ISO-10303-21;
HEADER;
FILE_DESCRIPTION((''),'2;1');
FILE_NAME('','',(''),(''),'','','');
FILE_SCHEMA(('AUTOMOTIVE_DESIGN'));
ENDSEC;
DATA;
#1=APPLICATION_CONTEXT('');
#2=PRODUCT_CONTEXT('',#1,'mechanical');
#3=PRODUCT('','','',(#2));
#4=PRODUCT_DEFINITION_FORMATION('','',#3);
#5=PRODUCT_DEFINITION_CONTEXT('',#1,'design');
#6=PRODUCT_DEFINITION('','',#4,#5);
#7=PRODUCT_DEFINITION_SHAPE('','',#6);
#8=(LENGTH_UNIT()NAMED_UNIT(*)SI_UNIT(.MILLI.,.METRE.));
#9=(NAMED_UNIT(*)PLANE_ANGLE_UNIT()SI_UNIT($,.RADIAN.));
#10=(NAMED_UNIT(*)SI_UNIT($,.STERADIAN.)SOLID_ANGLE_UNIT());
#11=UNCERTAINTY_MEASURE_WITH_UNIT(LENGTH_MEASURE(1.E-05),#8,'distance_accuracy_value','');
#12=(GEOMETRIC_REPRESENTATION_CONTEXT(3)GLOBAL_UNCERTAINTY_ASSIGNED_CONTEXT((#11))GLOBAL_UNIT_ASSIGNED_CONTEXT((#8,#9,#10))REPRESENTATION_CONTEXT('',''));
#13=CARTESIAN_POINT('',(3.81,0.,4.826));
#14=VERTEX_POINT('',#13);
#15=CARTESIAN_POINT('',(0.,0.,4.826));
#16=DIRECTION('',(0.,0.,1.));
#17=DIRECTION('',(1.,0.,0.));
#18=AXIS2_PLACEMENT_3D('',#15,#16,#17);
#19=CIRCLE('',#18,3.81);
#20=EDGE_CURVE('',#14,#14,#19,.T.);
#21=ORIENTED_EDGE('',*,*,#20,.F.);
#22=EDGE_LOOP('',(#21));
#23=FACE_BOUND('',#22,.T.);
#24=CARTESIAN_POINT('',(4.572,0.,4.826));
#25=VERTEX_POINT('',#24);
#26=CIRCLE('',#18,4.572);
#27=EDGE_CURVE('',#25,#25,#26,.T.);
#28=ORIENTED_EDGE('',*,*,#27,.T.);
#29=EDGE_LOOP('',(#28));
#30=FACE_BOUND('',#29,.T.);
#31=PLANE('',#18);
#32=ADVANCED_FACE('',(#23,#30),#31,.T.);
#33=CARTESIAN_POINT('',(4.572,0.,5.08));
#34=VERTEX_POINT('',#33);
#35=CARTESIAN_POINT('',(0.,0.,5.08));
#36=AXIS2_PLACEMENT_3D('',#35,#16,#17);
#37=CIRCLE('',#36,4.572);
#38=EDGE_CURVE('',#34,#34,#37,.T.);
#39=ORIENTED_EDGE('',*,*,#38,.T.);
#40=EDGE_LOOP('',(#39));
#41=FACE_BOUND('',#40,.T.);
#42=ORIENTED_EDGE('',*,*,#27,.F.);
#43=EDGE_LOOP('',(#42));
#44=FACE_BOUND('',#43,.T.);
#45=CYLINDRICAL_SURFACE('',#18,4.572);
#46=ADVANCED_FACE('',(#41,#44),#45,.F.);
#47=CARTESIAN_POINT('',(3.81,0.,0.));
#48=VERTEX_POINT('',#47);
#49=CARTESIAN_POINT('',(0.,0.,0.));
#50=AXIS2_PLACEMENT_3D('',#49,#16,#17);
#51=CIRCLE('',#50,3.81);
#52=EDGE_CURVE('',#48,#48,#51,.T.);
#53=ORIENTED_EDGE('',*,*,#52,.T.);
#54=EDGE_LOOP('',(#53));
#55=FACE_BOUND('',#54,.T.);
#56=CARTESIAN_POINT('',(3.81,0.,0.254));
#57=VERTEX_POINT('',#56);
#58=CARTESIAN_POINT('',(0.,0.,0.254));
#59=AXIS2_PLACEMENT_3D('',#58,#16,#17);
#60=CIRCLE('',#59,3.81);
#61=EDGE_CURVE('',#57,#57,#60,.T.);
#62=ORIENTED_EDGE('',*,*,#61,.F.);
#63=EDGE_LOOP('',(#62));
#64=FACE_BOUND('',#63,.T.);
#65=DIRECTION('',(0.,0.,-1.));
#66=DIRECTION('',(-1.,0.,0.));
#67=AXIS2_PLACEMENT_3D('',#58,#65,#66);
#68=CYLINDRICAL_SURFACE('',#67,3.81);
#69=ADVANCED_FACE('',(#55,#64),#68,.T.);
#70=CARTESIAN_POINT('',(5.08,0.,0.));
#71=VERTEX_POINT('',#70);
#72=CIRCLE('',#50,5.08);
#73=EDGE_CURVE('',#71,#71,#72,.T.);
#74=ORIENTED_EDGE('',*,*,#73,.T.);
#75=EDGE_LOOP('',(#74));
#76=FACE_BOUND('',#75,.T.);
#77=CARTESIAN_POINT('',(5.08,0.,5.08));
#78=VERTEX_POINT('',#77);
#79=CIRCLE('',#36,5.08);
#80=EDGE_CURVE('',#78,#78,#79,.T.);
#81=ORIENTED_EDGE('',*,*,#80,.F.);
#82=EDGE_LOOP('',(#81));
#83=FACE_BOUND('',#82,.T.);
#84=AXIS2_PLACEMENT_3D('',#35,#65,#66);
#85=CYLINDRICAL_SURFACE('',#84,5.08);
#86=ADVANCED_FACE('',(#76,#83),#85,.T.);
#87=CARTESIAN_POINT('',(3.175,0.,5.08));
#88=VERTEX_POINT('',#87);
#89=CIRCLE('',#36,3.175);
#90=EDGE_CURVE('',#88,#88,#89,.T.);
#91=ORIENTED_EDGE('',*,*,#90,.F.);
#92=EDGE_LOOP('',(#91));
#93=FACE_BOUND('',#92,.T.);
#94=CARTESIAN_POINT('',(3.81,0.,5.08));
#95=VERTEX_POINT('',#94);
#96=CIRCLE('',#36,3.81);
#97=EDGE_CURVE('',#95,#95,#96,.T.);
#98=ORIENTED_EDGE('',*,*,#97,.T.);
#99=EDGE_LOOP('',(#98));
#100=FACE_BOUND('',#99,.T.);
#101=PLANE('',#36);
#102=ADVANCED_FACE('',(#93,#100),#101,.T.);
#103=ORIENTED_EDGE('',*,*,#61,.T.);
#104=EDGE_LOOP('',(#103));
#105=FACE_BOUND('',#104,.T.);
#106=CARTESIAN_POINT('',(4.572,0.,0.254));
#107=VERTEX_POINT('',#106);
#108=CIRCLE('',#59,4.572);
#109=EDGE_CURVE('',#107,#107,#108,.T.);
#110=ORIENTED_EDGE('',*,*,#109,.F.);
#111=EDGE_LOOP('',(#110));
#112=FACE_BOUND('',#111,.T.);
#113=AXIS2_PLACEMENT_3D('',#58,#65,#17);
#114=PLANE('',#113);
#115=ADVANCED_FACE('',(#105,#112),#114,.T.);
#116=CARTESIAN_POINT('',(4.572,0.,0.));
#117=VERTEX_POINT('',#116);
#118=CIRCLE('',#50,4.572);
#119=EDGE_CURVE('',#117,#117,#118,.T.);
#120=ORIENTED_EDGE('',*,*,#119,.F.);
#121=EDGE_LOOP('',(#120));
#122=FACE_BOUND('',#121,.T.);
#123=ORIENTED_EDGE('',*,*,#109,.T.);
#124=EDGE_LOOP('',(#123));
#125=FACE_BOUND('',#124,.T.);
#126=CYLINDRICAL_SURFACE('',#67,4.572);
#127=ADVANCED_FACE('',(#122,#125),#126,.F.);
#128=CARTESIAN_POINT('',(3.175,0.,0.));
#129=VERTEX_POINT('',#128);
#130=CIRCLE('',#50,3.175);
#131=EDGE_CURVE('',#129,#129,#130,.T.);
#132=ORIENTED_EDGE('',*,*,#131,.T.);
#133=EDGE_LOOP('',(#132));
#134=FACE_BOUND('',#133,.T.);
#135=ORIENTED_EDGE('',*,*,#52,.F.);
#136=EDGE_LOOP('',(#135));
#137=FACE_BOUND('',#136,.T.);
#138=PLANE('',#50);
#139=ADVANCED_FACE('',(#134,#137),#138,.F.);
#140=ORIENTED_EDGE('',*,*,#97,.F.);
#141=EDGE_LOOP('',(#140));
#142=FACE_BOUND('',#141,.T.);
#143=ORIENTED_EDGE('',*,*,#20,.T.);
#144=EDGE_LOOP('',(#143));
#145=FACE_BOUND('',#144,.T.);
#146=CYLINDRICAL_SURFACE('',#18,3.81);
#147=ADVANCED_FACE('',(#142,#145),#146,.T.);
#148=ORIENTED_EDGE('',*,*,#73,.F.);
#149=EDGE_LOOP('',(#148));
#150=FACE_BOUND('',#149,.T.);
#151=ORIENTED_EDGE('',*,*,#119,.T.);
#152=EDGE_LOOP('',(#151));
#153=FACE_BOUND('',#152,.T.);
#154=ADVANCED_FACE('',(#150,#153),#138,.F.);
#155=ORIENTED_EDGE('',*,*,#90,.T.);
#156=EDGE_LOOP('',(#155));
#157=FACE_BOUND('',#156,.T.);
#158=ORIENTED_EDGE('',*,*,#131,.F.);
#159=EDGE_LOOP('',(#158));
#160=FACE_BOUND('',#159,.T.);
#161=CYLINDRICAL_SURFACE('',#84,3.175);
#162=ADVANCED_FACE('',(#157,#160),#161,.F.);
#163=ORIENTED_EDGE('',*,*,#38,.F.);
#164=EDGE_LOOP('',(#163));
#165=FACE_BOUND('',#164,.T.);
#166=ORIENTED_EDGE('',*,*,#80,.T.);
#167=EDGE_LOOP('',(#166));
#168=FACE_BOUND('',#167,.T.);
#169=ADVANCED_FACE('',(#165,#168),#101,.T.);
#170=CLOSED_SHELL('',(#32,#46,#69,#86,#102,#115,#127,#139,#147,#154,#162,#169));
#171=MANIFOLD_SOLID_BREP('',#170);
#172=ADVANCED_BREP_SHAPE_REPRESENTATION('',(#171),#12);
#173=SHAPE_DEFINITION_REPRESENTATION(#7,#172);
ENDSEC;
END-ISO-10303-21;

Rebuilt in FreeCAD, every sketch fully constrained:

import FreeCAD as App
import Part
import Sketcher
Q = App.Units.Quantity

doc = App.newDocument("Part")
body = doc.addObject("PartDesign::Body", "Body")

# Sketch on XY plane
sketch1 = body.newObject("Sketcher::SketchObject", "Sketch")
sketch1.AttachmentSupport = (doc.getObject("XY_Plane"), [""])
sketch1.MapMode = "FlatFace"
sketch1.addGeometry(Part.Circle(App.Vector(0, 0, 0), App.Vector(0, 0, 1), 5.1), False)
sketch1.addGeometry(Part.Circle(App.Vector(0, 0, 0), App.Vector(0, 0, 1), 3.2), False)
sketch1.addConstraint(Sketcher.Constraint("Coincident", 0, 3, -1, 1))
sketch1.addConstraint(Sketcher.Constraint("Coincident", 1, 3, -1, 1))
sketch1.addConstraint(Sketcher.Constraint("Diameter", 0, Q("0.4 in")))
sketch1.addConstraint(Sketcher.Constraint("Diameter", 1, Q("0.25 in")))
pad1 = body.newObject("PartDesign::Pad", "Pad")
pad1.Profile = sketch1
pad1.Length = Q("0.2 in")

# Sketch on XY plane
sketch2 = body.newObject("Sketcher::SketchObject", "Sketch001")
sketch2.AttachmentSupport = (doc.getObject("XY_Plane"), [""])
sketch2.MapMode = "FlatFace"
sketch2.AttachmentOffset = App.Placement(App.Vector(0, 0, 0.2 * 25.4), App.Rotation())
sketch2.addGeometry(Part.Circle(App.Vector(0, 0, 0), App.Vector(0, 0, 1), 4.6), False)
sketch2.addGeometry(Part.Circle(App.Vector(0, 0, 0), App.Vector(0, 0, 1), 3.8), False)
sketch2.addConstraint(Sketcher.Constraint("Coincident", 0, 3, -1, 1))
sketch2.addConstraint(Sketcher.Constraint("Coincident", 1, 3, -1, 1))
sketch2.addConstraint(Sketcher.Constraint("Diameter", 1, Q("0.3 in")))
sketch2.addConstraint(Sketcher.Constraint("Diameter", 0, Q("0.36 in")))
pocket1 = body.newObject("PartDesign::Pocket", "Pocket")
pocket1.Profile = sketch2
pocket1.Length = Q("0.01 in")
doc.recompute()

datumplane = body.newObject("PartDesign::Plane", "DatumPlane")
datumplane.AttachmentSupport = (doc.getObject("XY_Plane"), [""])
datumplane.MapMode = "FlatFace"
datumplane.AttachmentOffset = App.Placement(App.Vector(0, 0, 0.1 * 25.4), App.Rotation())
mirrored = body.newObject("PartDesign::Mirrored", "Mirrored")
mirrored.Originals = [pocket1]
mirrored.MirrorPlane = (datumplane, [""])
body.Tip = mirrored

doc.recompute()
